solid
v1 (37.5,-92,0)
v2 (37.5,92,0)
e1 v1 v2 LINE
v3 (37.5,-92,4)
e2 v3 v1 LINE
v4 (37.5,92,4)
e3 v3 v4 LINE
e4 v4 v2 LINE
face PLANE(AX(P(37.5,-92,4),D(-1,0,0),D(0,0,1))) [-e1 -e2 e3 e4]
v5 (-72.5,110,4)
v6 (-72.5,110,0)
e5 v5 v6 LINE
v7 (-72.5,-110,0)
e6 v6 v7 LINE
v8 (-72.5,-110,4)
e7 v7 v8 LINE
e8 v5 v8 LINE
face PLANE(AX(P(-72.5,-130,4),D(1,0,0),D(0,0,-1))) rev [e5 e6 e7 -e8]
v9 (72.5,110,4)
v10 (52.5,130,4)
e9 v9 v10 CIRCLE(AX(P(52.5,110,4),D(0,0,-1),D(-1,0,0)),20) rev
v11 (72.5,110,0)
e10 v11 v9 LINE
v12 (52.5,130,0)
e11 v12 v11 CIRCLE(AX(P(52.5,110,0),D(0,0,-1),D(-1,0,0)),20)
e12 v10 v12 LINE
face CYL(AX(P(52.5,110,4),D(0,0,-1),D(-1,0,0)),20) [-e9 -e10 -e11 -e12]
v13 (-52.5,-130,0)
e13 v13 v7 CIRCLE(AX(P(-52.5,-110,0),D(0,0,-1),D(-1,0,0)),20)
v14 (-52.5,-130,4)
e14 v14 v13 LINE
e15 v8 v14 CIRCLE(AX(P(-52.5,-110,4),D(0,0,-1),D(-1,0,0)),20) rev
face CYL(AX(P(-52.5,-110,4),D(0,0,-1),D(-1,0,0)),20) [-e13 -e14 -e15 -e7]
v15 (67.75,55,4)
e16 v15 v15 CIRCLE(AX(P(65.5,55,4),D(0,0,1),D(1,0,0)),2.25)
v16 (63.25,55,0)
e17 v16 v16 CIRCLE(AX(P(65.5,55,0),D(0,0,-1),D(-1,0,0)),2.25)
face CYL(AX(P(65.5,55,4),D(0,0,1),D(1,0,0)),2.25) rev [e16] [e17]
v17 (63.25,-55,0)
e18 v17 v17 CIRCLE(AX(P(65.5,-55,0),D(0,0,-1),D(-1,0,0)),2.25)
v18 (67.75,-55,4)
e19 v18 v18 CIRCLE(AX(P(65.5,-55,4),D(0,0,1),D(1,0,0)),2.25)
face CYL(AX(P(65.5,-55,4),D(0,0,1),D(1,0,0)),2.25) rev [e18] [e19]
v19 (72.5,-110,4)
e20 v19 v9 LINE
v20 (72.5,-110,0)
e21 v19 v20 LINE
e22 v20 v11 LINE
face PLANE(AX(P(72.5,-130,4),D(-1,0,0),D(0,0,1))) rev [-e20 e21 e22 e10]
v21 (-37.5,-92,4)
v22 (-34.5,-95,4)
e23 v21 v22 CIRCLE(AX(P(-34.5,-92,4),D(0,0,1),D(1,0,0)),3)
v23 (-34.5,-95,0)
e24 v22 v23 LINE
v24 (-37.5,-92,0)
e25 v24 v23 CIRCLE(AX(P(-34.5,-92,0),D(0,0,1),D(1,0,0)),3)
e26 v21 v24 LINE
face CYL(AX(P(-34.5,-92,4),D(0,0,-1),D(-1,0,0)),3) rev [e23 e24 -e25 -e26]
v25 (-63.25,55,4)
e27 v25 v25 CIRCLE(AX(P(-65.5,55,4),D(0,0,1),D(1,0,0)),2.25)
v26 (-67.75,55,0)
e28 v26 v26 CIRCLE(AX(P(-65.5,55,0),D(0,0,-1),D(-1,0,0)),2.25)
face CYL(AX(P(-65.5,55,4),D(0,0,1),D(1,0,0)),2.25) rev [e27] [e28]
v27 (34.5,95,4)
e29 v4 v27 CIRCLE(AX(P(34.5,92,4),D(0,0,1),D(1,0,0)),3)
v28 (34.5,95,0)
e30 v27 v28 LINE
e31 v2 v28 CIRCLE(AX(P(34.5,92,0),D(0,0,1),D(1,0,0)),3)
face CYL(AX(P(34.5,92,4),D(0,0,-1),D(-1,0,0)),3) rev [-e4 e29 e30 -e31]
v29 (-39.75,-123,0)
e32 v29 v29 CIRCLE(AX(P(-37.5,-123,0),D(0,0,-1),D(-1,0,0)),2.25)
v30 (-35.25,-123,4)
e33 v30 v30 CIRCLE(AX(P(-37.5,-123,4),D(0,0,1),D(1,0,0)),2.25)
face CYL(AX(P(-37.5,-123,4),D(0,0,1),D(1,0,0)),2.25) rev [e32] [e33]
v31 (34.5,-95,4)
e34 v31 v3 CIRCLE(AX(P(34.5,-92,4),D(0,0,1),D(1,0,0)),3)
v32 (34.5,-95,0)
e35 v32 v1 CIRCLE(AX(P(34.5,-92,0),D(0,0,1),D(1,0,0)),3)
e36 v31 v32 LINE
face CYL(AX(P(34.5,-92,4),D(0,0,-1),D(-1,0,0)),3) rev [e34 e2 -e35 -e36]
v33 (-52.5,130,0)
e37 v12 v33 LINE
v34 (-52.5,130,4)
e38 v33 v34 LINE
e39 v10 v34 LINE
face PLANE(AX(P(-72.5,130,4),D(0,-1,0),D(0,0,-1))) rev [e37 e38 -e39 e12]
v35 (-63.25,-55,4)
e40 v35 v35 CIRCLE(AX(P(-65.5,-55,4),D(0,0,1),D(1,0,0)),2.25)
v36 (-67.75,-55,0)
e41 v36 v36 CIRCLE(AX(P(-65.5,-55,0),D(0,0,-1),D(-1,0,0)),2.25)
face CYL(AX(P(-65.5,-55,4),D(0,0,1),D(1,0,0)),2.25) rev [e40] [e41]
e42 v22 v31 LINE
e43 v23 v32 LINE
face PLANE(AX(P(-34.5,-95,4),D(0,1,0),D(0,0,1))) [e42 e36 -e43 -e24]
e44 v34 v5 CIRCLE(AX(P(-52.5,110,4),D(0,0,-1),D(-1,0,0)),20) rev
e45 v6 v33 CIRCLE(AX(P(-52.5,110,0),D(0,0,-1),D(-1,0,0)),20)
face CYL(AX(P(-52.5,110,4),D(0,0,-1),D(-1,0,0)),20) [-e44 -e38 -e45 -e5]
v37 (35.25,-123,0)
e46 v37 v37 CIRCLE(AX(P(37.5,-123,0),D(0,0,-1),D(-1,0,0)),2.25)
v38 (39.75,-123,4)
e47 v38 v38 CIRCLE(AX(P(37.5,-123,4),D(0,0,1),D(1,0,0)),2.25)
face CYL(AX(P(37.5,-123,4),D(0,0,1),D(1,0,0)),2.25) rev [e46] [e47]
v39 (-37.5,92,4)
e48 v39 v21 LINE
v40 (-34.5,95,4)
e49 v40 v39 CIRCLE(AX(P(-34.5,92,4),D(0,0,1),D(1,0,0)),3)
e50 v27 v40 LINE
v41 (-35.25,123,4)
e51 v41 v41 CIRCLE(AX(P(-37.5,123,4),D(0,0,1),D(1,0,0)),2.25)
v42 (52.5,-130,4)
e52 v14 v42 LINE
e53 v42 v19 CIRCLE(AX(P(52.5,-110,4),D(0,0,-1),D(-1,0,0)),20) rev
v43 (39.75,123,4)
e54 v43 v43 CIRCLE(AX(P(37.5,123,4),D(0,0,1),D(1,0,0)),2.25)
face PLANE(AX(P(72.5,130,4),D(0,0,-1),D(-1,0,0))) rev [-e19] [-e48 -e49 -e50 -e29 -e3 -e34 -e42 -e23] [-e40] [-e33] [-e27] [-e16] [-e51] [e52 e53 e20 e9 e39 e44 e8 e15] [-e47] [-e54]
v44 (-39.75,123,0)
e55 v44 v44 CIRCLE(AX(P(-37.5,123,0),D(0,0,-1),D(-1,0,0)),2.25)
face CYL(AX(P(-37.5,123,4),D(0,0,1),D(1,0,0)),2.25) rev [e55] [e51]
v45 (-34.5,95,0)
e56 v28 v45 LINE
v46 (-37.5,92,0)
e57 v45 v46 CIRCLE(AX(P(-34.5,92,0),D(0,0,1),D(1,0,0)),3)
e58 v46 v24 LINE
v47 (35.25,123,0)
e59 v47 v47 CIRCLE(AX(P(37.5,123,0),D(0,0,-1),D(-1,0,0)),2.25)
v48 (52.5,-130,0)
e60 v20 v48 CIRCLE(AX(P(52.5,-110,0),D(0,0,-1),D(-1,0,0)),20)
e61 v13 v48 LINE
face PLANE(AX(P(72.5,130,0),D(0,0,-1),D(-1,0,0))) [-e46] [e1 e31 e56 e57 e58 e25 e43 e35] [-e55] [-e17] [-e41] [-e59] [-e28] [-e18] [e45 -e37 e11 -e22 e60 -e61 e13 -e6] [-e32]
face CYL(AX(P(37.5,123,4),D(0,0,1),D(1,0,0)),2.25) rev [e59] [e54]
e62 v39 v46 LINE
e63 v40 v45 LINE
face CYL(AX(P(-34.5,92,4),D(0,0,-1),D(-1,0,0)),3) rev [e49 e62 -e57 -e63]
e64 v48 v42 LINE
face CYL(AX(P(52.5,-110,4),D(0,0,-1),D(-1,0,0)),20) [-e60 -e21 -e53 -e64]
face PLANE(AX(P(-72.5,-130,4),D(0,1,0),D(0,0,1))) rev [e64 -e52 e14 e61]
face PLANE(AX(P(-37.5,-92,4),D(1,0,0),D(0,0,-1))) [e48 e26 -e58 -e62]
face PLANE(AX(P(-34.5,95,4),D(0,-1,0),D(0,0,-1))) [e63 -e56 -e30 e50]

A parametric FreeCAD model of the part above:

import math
import FreeCAD as App
import Part
import Sketcher
Q = App.Units.Quantity


def edges_at(feature, points):
    """Names of the edges that pass closest to the given points."""
    edges = feature.Shape.Edges
    near = lambda p: min(range(len(edges)), key=lambda i: edges[i].distToShape(Part.Vertex(*p))[0])
    return sorted({f"Edge{near(p) + 1}" for p in points})

doc = App.newDocument("Part")
body = doc.addObject("PartDesign::Body", "Body")

sketch1 = body.newObject("Sketcher::SketchObject", "Sketch")
sketch1.AttachmentSupport = (doc.getObject("XY_Plane"), [""])
sketch1.MapMode = "FlatFace"
sketch1.addGeometry([
    Part.LineSegment(App.Vector(-72.5, 130, 0), App.Vector(-72.5, -130, 0)),
    Part.LineSegment(App.Vector(-72.5, -130, 0), App.Vector(72.5, -130, 0)),
    Part.LineSegment(App.Vector(72.5, -130, 0), App.Vector(72.5, 130, 0)),
    Part.LineSegment(App.Vector(72.5, 130, 0), App.Vector(-72.5, 130, 0)),
    Part.LineSegment(App.Vector(34.5, -95, 0), App.Vector(-34.5, -95, 0)),
    Part.ArcOfCircle(Part.Circle(App.Vector(-34.5, -92, 0), App.Vector(0, 0, 1), 3), math.radians(180), math.radians(270)),
    Part.LineSegment(App.Vector(-37.5, -92, 0), App.Vector(-37.5, 92, 0)),
    Part.ArcOfCircle(Part.Circle(App.Vector(-34.5, 92, 0), App.Vector(0, 0, 1), 3), math.radians(90), math.radians(180)),
    Part.LineSegment(App.Vector(-34.5, 95, 0), App.Vector(34.5, 95, 0)),
    Part.ArcOfCircle(Part.Circle(App.Vector(34.5, 92, 0), App.Vector(0, 0, 1), 3), math.radians(0), math.radians(90)),
    Part.LineSegment(App.Vector(37.5, 92, 0), App.Vector(37.5, -92, 0)),
    Part.ArcOfCircle(Part.Circle(App.Vector(34.5, -92, 0), App.Vector(0, 0, 1), 3), math.radians(-90), math.radians(0)),
], False)
sketch1.addConstraint([
    Sketcher.Constraint("Coincident", 0, 2, 1, 1),
    Sketcher.Constraint("Coincident", 1, 2, 2, 1),
    Sketcher.Constraint("Coincident", 2, 2, 3, 1),
    Sketcher.Constraint("Coincident", 3, 2, 0, 1),
    Sketcher.Constraint("Tangent", 4, 2, 5, 2),
    Sketcher.Constraint("Tangent", 5, 1, 6, 1),
    Sketcher.Constraint("Tangent", 6, 2, 7, 2),
    Sketcher.Constraint("Tangent", 7, 1, 8, 1),
    Sketcher.Constraint("Tangent", 8, 2, 9, 2),
    Sketcher.Constraint("Tangent", 9, 1, 10, 1),
    Sketcher.Constraint("Tangent", 10, 2, 11, 2),
    Sketcher.Constraint("Tangent", 11, 1, 4, 1),
    Sketcher.Constraint("Vertical", 0),
    Sketcher.Constraint("Horizontal", 1),
    Sketcher.Constraint("Vertical", 2),
    Sketcher.Constraint("Horizontal", 3),
    Sketcher.Constraint("Horizontal", 4),
    Sketcher.Constraint("Vertical", 6),
    Sketcher.Constraint("Horizontal", 8),
    Sketcher.Constraint("Vertical", 10),
    Sketcher.Constraint("Equal", 5, 7),
    Sketcher.Constraint("Equal", 7, 9),
    Sketcher.Constraint("Equal", 9, 11),
    Sketcher.Constraint("Symmetric", 5, 3, 9, 3, -1, 1),
    Sketcher.Constraint("Symmetric", 0, 2, 2, 2, -1, 1),
    Sketcher.Constraint("Radius", 5, Q("3 mm")),
    Sketcher.Constraint("DistanceX", 1, 1, 1, 2, Q("145 mm")),
    Sketcher.Constraint("DistanceX", 4, 2, 4, 1, Q("69 mm")),
    Sketcher.Constraint("DistanceY", 0, 2, 0, 1, Q("260 mm")),
    Sketcher.Constraint("DistanceY", 6, 1, 6, 2, Q("184 mm")),
])
pad1 = body.newObject("PartDesign::Pad", "Pad")
pad1.Profile = sketch1
pad1.Length = 4

sketch2 = body.newObject("Sketcher::SketchObject", "Sketch001")
sketch2.AttachmentSupport = (doc.getObject("XY_Plane"), [""])
sketch2.MapMode = "FlatFace"
sketch2.AttachmentOffset = App.Placement(App.Vector(0, 0, 4), App.Rotation())
sketch2.addGeometry([
    Part.Circle(App.Vector(-37.5, 123, 0), App.Vector(0, 0, 1), 2.2),
    Part.Circle(App.Vector(37.5, 123, 0), App.Vector(0, 0, 1), 2.2),
    Part.Circle(App.Vector(65.5, 55, 0), App.Vector(0, 0, 1), 2.2),
    Part.Circle(App.Vector(65.5, -55, 0), App.Vector(0, 0, 1), 2.2),
    Part.Circle(App.Vector(37.5, -123, 0), App.Vector(0, 0, 1), 2.2),
    Part.Circle(App.Vector(-37.5, -123, 0), App.Vector(0, 0, 1), 2.2),
    Part.Circle(App.Vector(-65.5, -55, 0), App.Vector(0, 0, 1), 2.2),
    Part.Circle(App.Vector(-65.5, 55, 0), App.Vector(0, 0, 1), 2.2),
], False)
sketch2.addConstraint([
    Sketcher.Constraint("Equal", 0, 1),
    Sketcher.Constraint("Equal", 1, 2),
    Sketcher.Constraint("Equal", 2, 3),
    Sketcher.Constraint("Equal", 3, 4),
    Sketcher.Constraint("Equal", 4, 5),
    Sketcher.Constraint("Equal", 5, 6),
    Sketcher.Constraint("Equal", 6, 7),
    Sketcher.Constraint("Symmetric", 0, 3, 4, 3, -1, 1),
    Sketcher.Constraint("Symmetric", 1, 3, 5, 3, -1, 1),
    Sketcher.Constraint("Symmetric", 2, 3, 6, 3, -1, 1),
    Sketcher.Constraint("Symmetric", 3, 3, 7, 3, -1, 1),
    Sketcher.Constraint("Symmetric", 0, 3, 1, 3, -2),
    Sketcher.Constraint("Symmetric", 3, 3, 6, 3, -2),
    Sketcher.Constraint("Diameter", 0, Q("4.5 mm")),
    Sketcher.Constraint("DistanceY", -1, 1, 0, 3, Q("123 mm")),
    Sketcher.Constraint("DistanceY", -1, 1, 2, 3, Q("55 mm")),
    Sketcher.Constraint("DistanceX", 0, 3, 1, 3, Q("75 mm")),
    Sketcher.Constraint("DistanceX", 1, 3, 2, 3, Q("28 mm")),
])
doc.recompute()
hole = body.newObject("PartDesign::Hole", "Hole")
hole.Profile = sketch2
hole.ThreadType = "None"
hole.Diameter = 4.5
hole.DepthType = "ThroughAll"
doc.recompute()

fillet = body.newObject("PartDesign::Fillet", "Fillet")
fillet.Base = (hole, edges_at(hole, [
    (72.5, -130, 2),
    (-72.5, -130, 2),
    (-72.5, 130, 2),
    (72.5, 130, 2),
]))
fillet.Radius = 20

doc.recompute()
